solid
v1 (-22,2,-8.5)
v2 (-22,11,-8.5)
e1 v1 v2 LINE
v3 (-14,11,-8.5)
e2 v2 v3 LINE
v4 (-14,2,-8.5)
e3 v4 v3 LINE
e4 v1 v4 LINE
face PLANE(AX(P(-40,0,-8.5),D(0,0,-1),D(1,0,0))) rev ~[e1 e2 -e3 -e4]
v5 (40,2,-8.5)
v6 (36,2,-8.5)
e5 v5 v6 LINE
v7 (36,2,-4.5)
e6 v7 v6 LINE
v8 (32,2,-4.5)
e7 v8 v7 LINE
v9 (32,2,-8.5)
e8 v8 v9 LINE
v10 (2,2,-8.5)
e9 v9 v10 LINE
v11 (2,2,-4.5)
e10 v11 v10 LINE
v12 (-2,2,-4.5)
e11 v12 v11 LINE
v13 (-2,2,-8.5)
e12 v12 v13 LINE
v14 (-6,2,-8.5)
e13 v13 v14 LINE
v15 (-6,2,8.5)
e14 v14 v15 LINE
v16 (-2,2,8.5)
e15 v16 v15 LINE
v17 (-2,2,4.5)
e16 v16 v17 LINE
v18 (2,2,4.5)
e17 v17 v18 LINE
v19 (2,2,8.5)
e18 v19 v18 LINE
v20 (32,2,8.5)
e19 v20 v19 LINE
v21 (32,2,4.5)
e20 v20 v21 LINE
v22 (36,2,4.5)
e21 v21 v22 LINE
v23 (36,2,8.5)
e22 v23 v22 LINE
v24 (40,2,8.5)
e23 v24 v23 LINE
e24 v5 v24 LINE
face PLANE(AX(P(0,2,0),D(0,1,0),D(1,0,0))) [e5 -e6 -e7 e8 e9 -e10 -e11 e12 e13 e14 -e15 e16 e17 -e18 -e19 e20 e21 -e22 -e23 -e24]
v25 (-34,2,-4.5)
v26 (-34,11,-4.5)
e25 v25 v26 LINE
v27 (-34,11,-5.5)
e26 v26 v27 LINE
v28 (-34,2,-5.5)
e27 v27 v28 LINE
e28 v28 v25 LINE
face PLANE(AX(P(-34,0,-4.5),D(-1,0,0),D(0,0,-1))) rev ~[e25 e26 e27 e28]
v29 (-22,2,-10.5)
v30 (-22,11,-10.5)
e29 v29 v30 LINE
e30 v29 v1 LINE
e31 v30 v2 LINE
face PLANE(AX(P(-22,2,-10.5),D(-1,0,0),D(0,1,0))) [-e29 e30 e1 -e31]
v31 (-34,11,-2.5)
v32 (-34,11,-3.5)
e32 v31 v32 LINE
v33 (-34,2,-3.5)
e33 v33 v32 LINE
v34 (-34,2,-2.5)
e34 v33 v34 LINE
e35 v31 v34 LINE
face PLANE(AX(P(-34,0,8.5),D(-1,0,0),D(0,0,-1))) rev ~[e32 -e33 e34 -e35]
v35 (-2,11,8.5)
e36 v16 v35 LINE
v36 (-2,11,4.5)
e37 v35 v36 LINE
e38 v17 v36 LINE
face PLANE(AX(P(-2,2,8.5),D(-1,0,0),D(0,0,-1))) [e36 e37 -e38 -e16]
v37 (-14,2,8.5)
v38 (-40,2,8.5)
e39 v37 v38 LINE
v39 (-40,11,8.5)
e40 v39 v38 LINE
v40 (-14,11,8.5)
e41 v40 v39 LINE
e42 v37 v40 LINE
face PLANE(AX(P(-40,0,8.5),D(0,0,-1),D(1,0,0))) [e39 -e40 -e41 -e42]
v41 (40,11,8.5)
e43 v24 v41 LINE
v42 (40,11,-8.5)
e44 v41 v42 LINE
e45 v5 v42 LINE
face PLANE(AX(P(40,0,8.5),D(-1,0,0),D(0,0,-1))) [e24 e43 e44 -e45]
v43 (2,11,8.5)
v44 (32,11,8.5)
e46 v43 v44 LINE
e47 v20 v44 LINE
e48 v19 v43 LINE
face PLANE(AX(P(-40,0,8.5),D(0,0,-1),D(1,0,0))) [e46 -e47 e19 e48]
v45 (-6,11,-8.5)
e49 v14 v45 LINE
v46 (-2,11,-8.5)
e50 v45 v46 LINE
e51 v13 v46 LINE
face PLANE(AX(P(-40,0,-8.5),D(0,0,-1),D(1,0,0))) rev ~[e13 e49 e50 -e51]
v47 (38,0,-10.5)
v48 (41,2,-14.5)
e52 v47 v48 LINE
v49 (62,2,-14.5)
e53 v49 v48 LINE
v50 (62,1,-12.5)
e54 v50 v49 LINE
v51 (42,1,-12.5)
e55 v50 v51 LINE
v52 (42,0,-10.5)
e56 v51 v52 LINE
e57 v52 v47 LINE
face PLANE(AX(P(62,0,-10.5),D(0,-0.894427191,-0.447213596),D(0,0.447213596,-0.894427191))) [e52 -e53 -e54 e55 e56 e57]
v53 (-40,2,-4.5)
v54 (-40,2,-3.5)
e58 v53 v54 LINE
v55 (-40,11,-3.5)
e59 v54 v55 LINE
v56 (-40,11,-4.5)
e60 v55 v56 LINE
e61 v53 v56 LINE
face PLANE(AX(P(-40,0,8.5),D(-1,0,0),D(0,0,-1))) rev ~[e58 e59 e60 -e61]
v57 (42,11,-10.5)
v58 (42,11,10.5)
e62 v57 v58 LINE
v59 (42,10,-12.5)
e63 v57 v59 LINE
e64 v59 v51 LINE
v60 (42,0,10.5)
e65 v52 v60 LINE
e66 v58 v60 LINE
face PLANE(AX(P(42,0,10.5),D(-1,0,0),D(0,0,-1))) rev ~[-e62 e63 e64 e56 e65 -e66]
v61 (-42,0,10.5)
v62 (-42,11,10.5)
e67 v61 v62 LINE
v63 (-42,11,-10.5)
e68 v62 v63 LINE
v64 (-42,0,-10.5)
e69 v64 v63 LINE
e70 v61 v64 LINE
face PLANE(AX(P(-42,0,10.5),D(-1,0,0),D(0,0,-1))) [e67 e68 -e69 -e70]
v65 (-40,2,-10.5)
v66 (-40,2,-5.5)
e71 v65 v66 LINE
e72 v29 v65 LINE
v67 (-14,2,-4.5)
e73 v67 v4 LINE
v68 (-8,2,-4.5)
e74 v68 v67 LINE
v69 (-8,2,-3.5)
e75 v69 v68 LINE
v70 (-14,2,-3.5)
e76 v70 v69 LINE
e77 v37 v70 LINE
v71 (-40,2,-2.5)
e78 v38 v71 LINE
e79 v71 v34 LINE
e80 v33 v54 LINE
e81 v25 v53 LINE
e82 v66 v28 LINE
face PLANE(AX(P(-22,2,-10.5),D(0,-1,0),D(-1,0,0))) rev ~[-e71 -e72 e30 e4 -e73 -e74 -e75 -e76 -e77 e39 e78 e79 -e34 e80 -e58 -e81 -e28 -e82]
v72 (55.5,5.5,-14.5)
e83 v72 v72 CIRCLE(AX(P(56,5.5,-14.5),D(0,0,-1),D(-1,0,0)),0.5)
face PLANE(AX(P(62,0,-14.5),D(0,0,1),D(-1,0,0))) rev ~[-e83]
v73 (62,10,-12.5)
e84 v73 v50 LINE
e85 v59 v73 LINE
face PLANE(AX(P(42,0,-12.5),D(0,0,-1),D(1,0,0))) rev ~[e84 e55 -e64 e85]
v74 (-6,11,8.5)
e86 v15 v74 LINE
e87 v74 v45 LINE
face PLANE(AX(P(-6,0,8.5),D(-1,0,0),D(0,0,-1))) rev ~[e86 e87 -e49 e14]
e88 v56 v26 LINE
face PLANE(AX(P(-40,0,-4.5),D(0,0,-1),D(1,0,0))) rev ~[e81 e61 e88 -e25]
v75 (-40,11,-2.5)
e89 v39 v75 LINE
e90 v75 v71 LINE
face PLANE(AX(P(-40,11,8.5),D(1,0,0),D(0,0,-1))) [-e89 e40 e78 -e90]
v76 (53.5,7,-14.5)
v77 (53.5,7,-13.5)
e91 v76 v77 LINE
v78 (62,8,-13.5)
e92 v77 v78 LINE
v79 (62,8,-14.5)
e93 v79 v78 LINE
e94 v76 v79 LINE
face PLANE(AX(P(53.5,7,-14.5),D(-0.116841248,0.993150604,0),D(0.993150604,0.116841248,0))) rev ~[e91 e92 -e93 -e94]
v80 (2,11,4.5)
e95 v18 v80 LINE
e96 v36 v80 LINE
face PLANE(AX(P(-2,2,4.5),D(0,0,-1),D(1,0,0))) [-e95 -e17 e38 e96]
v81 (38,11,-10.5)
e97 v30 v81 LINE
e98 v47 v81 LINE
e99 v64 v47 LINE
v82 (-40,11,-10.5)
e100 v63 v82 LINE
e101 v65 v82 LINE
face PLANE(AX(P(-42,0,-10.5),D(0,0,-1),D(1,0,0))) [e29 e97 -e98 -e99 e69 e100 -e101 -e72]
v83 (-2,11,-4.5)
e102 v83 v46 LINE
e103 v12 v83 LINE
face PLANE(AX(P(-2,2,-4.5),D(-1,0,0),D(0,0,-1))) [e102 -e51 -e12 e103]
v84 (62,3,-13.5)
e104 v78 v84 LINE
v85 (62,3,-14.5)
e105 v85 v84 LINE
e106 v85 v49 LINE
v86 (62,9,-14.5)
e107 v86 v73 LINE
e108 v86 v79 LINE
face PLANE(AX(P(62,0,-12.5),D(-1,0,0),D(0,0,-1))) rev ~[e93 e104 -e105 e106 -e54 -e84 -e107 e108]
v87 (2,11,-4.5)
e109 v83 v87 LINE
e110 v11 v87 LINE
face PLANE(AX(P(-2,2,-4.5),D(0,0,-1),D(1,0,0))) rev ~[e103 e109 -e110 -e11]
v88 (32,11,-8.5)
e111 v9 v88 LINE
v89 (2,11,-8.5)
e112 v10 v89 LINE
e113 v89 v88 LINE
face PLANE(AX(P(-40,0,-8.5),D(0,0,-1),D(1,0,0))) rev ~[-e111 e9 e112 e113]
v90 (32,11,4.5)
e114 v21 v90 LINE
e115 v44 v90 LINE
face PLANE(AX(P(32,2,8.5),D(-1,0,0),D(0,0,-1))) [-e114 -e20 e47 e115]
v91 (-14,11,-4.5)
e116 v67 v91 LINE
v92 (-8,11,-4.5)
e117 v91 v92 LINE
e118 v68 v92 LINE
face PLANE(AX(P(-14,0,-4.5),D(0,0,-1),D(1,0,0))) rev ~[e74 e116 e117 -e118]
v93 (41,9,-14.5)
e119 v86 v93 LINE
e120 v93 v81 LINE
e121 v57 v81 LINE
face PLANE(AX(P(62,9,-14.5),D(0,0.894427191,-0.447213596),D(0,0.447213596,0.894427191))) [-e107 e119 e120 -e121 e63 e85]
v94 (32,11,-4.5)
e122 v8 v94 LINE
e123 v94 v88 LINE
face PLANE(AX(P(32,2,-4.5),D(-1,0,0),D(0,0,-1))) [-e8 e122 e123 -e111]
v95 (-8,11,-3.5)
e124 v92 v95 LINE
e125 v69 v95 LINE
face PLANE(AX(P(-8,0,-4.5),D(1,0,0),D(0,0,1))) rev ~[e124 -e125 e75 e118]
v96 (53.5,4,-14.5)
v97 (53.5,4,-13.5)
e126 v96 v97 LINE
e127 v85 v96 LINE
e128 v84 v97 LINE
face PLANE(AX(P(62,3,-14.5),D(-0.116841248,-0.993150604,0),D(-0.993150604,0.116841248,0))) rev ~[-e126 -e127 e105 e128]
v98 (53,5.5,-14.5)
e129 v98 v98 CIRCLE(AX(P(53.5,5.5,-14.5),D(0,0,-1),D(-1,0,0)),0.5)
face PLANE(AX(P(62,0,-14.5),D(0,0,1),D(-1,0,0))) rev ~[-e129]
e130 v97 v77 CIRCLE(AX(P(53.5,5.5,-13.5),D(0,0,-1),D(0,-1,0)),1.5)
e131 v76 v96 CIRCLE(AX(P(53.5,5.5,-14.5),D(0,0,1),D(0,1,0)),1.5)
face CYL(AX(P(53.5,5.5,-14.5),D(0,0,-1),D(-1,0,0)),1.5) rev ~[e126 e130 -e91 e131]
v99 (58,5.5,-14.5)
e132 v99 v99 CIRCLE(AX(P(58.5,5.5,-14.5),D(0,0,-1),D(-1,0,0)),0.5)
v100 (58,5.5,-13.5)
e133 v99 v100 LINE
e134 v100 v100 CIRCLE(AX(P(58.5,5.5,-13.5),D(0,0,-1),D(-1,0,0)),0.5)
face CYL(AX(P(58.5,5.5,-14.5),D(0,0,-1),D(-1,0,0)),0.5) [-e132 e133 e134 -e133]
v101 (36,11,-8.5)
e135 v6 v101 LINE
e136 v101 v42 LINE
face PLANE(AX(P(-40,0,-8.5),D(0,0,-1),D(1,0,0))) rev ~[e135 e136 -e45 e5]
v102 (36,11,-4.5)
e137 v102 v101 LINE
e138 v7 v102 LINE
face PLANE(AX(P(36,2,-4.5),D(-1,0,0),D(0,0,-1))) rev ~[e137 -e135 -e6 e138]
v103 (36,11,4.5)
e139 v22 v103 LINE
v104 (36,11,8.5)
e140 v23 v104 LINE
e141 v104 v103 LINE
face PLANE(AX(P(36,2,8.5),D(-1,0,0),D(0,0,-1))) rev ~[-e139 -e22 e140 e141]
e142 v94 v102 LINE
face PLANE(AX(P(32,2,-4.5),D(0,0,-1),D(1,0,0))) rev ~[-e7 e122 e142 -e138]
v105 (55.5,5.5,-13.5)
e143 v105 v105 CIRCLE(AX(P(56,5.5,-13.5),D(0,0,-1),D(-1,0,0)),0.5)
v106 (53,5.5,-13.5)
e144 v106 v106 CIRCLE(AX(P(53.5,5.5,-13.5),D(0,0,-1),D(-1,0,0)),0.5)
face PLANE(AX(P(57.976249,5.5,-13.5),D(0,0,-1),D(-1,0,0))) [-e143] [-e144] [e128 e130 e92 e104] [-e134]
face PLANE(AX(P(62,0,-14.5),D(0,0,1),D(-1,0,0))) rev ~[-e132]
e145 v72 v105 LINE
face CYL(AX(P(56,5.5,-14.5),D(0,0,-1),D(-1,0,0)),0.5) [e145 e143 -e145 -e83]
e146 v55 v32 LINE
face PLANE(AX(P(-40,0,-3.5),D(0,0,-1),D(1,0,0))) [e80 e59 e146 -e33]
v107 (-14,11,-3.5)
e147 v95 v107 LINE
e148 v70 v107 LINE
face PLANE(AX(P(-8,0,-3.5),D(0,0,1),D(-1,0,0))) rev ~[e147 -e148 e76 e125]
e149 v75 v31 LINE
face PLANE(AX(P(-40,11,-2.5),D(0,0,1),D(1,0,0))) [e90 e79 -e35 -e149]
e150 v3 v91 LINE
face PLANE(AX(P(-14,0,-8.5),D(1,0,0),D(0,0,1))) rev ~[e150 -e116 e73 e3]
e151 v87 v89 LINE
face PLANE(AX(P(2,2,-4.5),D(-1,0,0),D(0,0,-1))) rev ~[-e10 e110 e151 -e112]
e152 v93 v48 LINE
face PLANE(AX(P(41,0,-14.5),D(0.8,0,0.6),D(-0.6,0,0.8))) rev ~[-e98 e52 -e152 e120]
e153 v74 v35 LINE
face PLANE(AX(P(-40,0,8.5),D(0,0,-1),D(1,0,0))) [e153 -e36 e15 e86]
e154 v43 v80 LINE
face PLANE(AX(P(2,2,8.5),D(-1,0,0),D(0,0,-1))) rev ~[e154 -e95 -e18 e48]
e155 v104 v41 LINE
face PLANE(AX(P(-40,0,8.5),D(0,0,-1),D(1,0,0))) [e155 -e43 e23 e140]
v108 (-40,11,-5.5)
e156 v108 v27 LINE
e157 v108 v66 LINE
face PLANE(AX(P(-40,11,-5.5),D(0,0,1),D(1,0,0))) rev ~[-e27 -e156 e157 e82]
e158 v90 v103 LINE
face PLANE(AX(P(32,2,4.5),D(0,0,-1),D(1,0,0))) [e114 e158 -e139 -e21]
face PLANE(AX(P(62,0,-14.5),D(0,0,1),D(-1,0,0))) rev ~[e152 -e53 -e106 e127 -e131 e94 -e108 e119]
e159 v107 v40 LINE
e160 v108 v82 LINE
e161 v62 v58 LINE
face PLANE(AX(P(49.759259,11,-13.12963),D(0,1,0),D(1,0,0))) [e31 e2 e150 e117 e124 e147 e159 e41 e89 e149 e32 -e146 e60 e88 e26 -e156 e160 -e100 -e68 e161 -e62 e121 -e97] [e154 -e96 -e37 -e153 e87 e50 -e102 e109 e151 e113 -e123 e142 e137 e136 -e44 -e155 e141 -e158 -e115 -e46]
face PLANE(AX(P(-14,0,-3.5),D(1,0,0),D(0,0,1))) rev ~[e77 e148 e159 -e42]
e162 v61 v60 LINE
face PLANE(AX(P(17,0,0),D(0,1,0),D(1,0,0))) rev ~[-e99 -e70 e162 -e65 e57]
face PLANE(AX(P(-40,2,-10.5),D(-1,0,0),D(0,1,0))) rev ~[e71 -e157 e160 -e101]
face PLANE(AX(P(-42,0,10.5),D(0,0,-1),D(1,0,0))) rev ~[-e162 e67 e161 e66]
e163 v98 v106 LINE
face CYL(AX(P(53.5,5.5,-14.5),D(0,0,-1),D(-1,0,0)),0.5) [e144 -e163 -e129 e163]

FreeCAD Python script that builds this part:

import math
import FreeCAD as App
import Part
import Sketcher
from FreeCAD import Vector
Q = App.Units.Quantity


def add_polygon(sketch, points):
    """Adds a closed chain of lines whose ends are joined by coincident constraints."""
    first, n = sketch.GeometryCount, len(points)
    for a, b in zip(points, points[1:] + points[:1]):
        sketch.addGeometry(Part.LineSegment(App.Vector(*a, 0), App.Vector(*b, 0)), False)
    for i in range(n):
        sketch.addConstraint(Sketcher.Constraint("Coincident", first + i, 2, first + (i + 1) % n, 1))

doc = App.newDocument("Part")
body = doc.addObject("PartDesign::Body", "Body")

# Sketch on XZ plane
sketch1 = body.newObject("Sketcher::SketchObject", "Sketch")
sketch1.AttachmentSupport = (doc.getObject("XZ_Plane"), [""])
sketch1.MapMode = "FlatFace"
add_polygon(sketch1, [(42, -12.5), (62, -12.5), (62, -14.5), (41, -14.5), (38, -10.5), (-42, -10.5), (-42, 10.5), (42, 10.5)])  # lines 0-7
sketch1.addConstraint([
    Sketcher.Constraint("Horizontal", 0),
    Sketcher.Constraint("Vertical", 1),
    Sketcher.Constraint("Horizontal", 2),
    Sketcher.Constraint("Horizontal", 4),
    Sketcher.Constraint("Vertical", 5),
    Sketcher.Constraint("Horizontal", 6),
    Sketcher.Constraint("Vertical", 7),
    Sketcher.Constraint("Symmetric", 4, 2, 6, 2, -1, 1),
    Sketcher.Constraint("Equal", 2, 5),
    Sketcher.Constraint("DistanceX", 0, 1, 0, 2, Q("20 mm")),
    Sketcher.Constraint("DistanceX", 2, 2, 2, 1, Q("21 mm")),
    Sketcher.Constraint("DistanceX", 4, 2, 4, 1, Q("80 mm")),
    Sketcher.Constraint("DistanceX", 6, 1, 6, 2, Q("84 mm")),
    Sketcher.Constraint("DistanceY", 1, 2, 1, 1, Q("2 mm")),
    Sketcher.Constraint("DistanceY", 7, 2, 7, 1, Q("23 mm")),
])
pad1 = body.newObject("PartDesign::Pad", "Pad")
pad1.Profile = sketch1
pad1.Length = 2
pad1.Reversed = True

# Sketch on XZ plane
sketch2 = body.newObject("Sketcher::SketchObject", "Sketch001")
sketch2.AttachmentSupport = (doc.getObject("XZ_Plane"), [""])
sketch2.MapMode = "FlatFace"
add_polygon(sketch2, [(42, -12.5), (62, -12.5), (62, -14.5), (41, -14.5), (38, -10.5), (-42, -10.5), (-42, 10.5), (42, 10.5)])  # lines 0-7
add_polygon(sketch2, [(-14, 8.5), (-34, 8.5), (-34, -3.5), (-40, -3.5), (-40, -4.5), (-34, -4.5), (-34, -8.5), (-14, -8.5), (-14, -4.5), (-8, -4.5), (-8, -3.5), (-14, -3.5)])  # lines 8-19
add_polygon(sketch2, [(40, 8.5), (-6, 8.5), (-6, -8.5), (40, -8.5)])  # lines 20-23
sketch2.addConstraint([
    Sketcher.Constraint("Horizontal", 0),
    Sketcher.Constraint("Vertical", 1),
    Sketcher.Constraint("Horizontal", 2),
    Sketcher.Constraint("Horizontal", 4),
    Sketcher.Constraint("Vertical", 5),
    Sketcher.Constraint("Horizontal", 6),
    Sketcher.Constraint("Vertical", 7),
    Sketcher.Constraint("Horizontal", 8),
    Sketcher.Constraint("Vertical", 9),
    Sketcher.Constraint("Horizontal", 10),
    Sketcher.Constraint("Vertical", 11),
    Sketcher.Constraint("Horizontal", 12),
    Sketcher.Constraint("Vertical", 13),
    Sketcher.Constraint("Horizontal", 14),
    Sketcher.Constraint("Vertical", 15),
    Sketcher.Constraint("Horizontal", 16),
    Sketcher.Constraint("Vertical", 17),
    Sketcher.Constraint("Horizontal", 18),
    Sketcher.Constraint("Vertical", 19),
    Sketcher.Constraint("Horizontal", 20),
    Sketcher.Constraint("Vertical", 21),
    Sketcher.Constraint("Horizontal", 22),
    Sketcher.Constraint("Vertical", 23),
    Sketcher.Constraint("Symmetric", 4, 2, 6, 2, -1, 1),
    Sketcher.Constraint("Symmetric", 8, 2, 13, 2, -1),
    Sketcher.Constraint("Horizontal", 12, 2, 15, 2),
    Sketcher.Constraint("Horizontal", 10, 2, 17, 2),
    Sketcher.Constraint("Horizontal", 19, 2, 20, 2),
    Sketcher.Constraint("Horizontal", 14, 2, 21, 2),
    Sketcher.Constraint("Vertical", 15, 2, 18, 2),
    Sketcher.Constraint("Equal", 0, 8),
    Sketcher.Constraint("Equal", 12, 16),
    Sketcher.Constraint("Equal", 2, 5),
    Sketcher.Constraint("DistanceX", 0, 1, 0, 2, Q("20 mm")),
    Sketcher.Constraint("DistanceX", 2, 2, 2, 1, Q("21 mm")),
    Sketcher.Constraint("DistanceX", 4, 2, 4, 1, Q("80 mm")),
    Sketcher.Constraint("DistanceX", 6, 1, 6, 2, Q("84 mm")),
    Sketcher.Constraint("DistanceX", 10, 2, 10, 1, Q("6 mm")),
    Sketcher.Constraint("DistanceX", 20, 2, 20, 1, Q("46 mm")),
    Sketcher.Constraint("DistanceY", 1, 2, 1, 1, Q("2 mm")),
    Sketcher.Constraint("DistanceY", 7, 2, 7, 1, Q("23 mm")),
    Sketcher.Constraint("DistanceY", 9, 2, 9, 1, Q("12 mm")),
    Sketcher.Constraint("DistanceY", 11, 2, 11, 1, Q("1 mm")),
    Sketcher.Constraint("DistanceY", 13, 2, 13, 1, Q("4 mm")),
    Sketcher.Constraint("DistanceX", 8, 2, -1, 1, Q("34 mm")),
    Sketcher.Constraint("DistanceX", 20, 2, -1, 1, Q("6 mm")),
])
pad2 = body.newObject("PartDesign::Pad", "Pad001")
pad2.Profile = sketch2
pad2.Length = 11
pad2.Reversed = True

# Sketch on XZ plane
sketch3 = body.newObject("Sketcher::SketchObject", "Sketch002")
sketch3.AttachmentSupport = (doc.getObject("XZ_Plane"), [""])
sketch3.MapMode = "FlatFace"
sketch3.AttachmentOffset = App.Placement(Vector(0, 0, -11), App.Rotation())
add_polygon(sketch3, [(-40, -8.5), (-40, -5.5), (-34, -5.5), (-34, -8.5)])  # lines 0-3
add_polygon(sketch3, [(-40, -2.5), (-40, 8.5), (-34, 8.5), (-34, -2.5)])  # lines 4-7
sketch3.addConstraint([
    Sketcher.Constraint("Vertical", 0),
    Sketcher.Constraint("Horizontal", 1),
    Sketcher.Constraint("Vertical", 2),
    Sketcher.Constraint("Horizontal", 3),
    Sketcher.Constraint("Vertical", 4),
    Sketcher.Constraint("Horizontal", 5),
    Sketcher.Constraint("Vertical", 6),
    Sketcher.Constraint("Horizontal", 7),
    Sketcher.Constraint("Symmetric", 3, 2, 4, 2, -1),
    Sketcher.Constraint("Vertical", 2, 2, 5, 2),
    Sketcher.Constraint("DistanceX", 1, 1, 1, 2, Q("6 mm")),
    Sketcher.Constraint("DistanceY", 0, 1, 0, 2, Q("3 mm")),
    Sketcher.Constraint("DistanceY", 4, 1, 4, 2, Q("11 mm")),
    Sketcher.Constraint("DistanceX", 0, 2, -1, 1, Q("40 mm")),
    Sketcher.Constraint("DistanceY", 0, 2, 4, 2, Q("14 mm")),
])
pocket1 = body.newObject("PartDesign::Pocket", "Pocket")
pocket1.Profile = sketch3
pocket1.Length = 9
pocket1.Reversed = True

# Sketch on XY plane
sketch4 = body.newObject("Sketcher::SketchObject", "Sketch003")
sketch4.AttachmentSupport = (doc.getObject("XY_Plane"), [""])
sketch4.MapMode = "FlatFace"
sketch4.AttachmentOffset = App.Placement(Vector(0, 0, -10.5), App.Rotation())
add_polygon(sketch4, [(-22, 11), (-22, 2), (-40, 2), (-40, 11)])  # lines 0-3
sketch4.addConstraint([
    Sketcher.Constraint("Vertical", 0),
    Sketcher.Constraint("Horizontal", 1),
    Sketcher.Constraint("Vertical", 2),
    Sketcher.Constraint("Horizontal", 3),
    Sketcher.Constraint("DistanceX", 1, 2, 1, 1, Q("18 mm")),
    Sketcher.Constraint("DistanceY", 0, 2, 0, 1, Q("9 mm")),
    Sketcher.Constraint("DistanceX", 0, 2, -1, 1, Q("22 mm")),
    Sketcher.Constraint("DistanceY", -1, 1, 0, 2, Q("2 mm")),
])
pocket2 = body.newObject("PartDesign::Pocket", "Pocket001")
pocket2.Profile = sketch4
pocket2.Length = 2
pocket2.Reversed = True

# Sketch on XZ plane
sketch5 = body.newObject("Sketcher::SketchObject", "Sketch004")
sketch5.AttachmentSupport = (doc.getObject("XZ_Plane"), [""])
sketch5.MapMode = "FlatFace"
sketch5.AttachmentOffset = App.Placement(Vector(0, 0, -2), App.Rotation())
add_polygon(sketch5, [(-2, -8.5), (-2, -4.5), (2, -4.5), (2, -8.5)])  # lines 0-3
add_polygon(sketch5, [(-2, 4.5), (-2, 8.5), (2, 8.5), (2, 4.5)])  # lines 4-7
add_polygon(sketch5, [(32, -8.5), (32, -4.5), (36, -4.5), (36, -8.5)])  # lines 8-11
add_polygon(sketch5, [(32, 4.5), (32, 8.5), (36, 8.5), (36, 4.5)])  # lines 12-15
sketch5.addConstraint([
    Sketcher.Constraint("Vertical", 0),
    Sketcher.Constraint("Horizontal", 1),
    Sketcher.Constraint("Vertical", 2),
    Sketcher.Constraint("Horizontal", 3),
    Sketcher.Constraint("Vertical", 4),
    Sketcher.Constraint("Horizontal", 5),
    Sketcher.Constraint("Vertical", 6),
    Sketcher.Constraint("Horizontal", 7),
    Sketcher.Constraint("Vertical", 8),
    Sketcher.Constraint("Horizontal", 9),
    Sketcher.Constraint("Vertical", 10),
    Sketcher.Constraint("Horizontal", 11),
    Sketcher.Constraint("Vertical", 12),
    Sketcher.Constraint("Horizontal", 13),
    Sketcher.Constraint("Vertical", 14),
    Sketcher.Constraint("Horizontal", 15),
    Sketcher.Constraint("Symmetric", 2, 2, 4, 2, -1, 1),
    Sketcher.Constraint("Symmetric", 0, 2, 6, 2, -1, 1),
    Sketcher.Constraint("Symmetric", 11, 2, 12, 2, -1),
    Sketcher.Constraint("Symmetric", 9, 2, 14, 2, -1),
    Sketcher.Constraint("Horizontal", 1, 2, 8, 2),
    Sketcher.Constraint("Horizontal", 3, 2, 10, 2),
    Sketcher.Constraint("Vertical", 3, 2, 4, 2),
    Sketcher.Constraint("Equal", 7, 9),
    Sketcher.Constraint("Equal", 15, 0),
    Sketcher.Constraint("DistanceX", 1, 1, 1, 2, Q("4 mm")),
    Sketcher.Constraint("DistanceX", -1, 1, 8, 2, Q("32 mm")),
    Sketcher.Constraint("DistanceY", 0, 2, 4, 2, Q("13 mm")),
])
pad3 = body.newObject("PartDesign::Pad", "Pad002")
pad3.Profile = sketch5
pad3.Length = 9
pad3.Reversed = True

# Sketch on XY plane
sketch6 = body.newObject("Sketcher::SketchObject", "Sketch005")
sketch6.AttachmentSupport = (doc.getObject("XY_Plane"), [""])
sketch6.MapMode = "FlatFace"
sketch6.AttachmentOffset = App.Placement(Vector(0, 0, -14.5), App.Rotation())
sketch6.addGeometry([
    Part.LineSegment(Vector(62, 8, 0), Vector(62, 3, 0)),  # 0
    Part.LineSegment(Vector(62, 3, 0), Vector(53.5, 4, 0)),  # 1
    Part.ArcOfCircle(Part.Circle(Vector(53.5, 5.5, 0), Vector(0, 0, 1), 1.5), math.radians(90), math.radians(270)),  # 2
    Part.LineSegment(Vector(53.5, 7, 0), Vector(62, 8, 0)),  # 3
    Part.Circle(Vector(58.5, 5.5, 0), Vector(0, 0, 1), 0.5),  # 4
    Part.Circle(Vector(56, 5.5, 0), Vector(0, 0, 1), 0.5),  # 5
    Part.Circle(Vector(53.5, 5.5, 0), Vector(0, 0, 1), 0.5),  # 6
], False)
sketch6.addConstraint([
    Sketcher.Constraint("Coincident", 0, 2, 1, 1),
    Sketcher.Constraint("Coincident", 1, 2, 2, 2),
    Sketcher.Constraint("Coincident", 2, 1, 3, 1),
    Sketcher.Constraint("Coincident", 3, 2, 0, 1),
    Sketcher.Constraint("Vertical", 0),
    Sketcher.Constraint("Coincident", 6, 3, 2, 3),
    Sketcher.Constraint("Equal", 4, 5),
    Sketcher.Constraint("Equal", 5, 6),
    Sketcher.Constraint("Horizontal", 2, 3, 4, 3),
    Sketcher.Constraint("Horizontal", 4, 3, 5, 3),
    Sketcher.Constraint("Vertical", 6, 3, 1, 2),
    Sketcher.Constraint("Vertical", 1, 2, 2, 1),
    Sketcher.Constraint("Equal", 1, 3),
    Sketcher.Constraint("Diameter", 4, Q("1 mm")),
    Sketcher.Constraint("Radius", 2, Q("1.5 mm")),
    Sketcher.Constraint("DistanceY", 0, 2, 0, 1, Q("5 mm")),
    Sketcher.Constraint("DistanceX", -1, 1, 5, 3, Q("56 mm")),
    Sketcher.Constraint("DistanceX", -1, 1, 0, 2, Q("62 mm")),
    Sketcher.Constraint("DistanceY", -1, 1, 0, 2, Q("3 mm")),
    Sketcher.Constraint("DistanceX", 2, 3, 4, 3, Q("5 mm")),
    Sketcher.Constraint("DistanceX", -1, 1, 2, 3, Q("53.5 mm")),
])
pocket3 = body.newObject("PartDesign::Pocket", "Pocket002")
pocket3.Profile = sketch6
pocket3.Length = 1
pocket3.Reversed = True

# Sketch on YZ plane
sketch7 = body.newObject("Sketcher::SketchObject", "Sketch006")
sketch7.AttachmentSupport = (doc.getObject("YZ_Plane"), [""])
sketch7.MapMode = "FlatFace"
sketch7.AttachmentOffset = App.Placement(Vector(0, 0, 62), App.Rotation())
add_polygon(sketch7, [(11, -14.5), (11, -10.5), (9, -14.5)])  # lines 0-2
add_polygon(sketch7, [(2, -14.5), (0, -10.5), (0, -14.5)])  # lines 3-5
sketch7.addConstraint([
    Sketcher.Constraint("Vertical", 0),
    Sketcher.Constraint("Horizontal", 2),
    Sketcher.Constraint("Vertical", 4),
    Sketcher.Constraint("Horizontal", 5),
    Sketcher.Constraint("PointOnObject", 3, 2, -2),
    Sketcher.Constraint("Horizontal", 0, 2, 3, 2),
    Sketcher.Constraint("Horizontal", 2, 2, 4, 2),
    Sketcher.Constraint("Equal", 2, 5),
    Sketcher.Constraint("DistanceX", 2, 1, 2, 2, Q("2 mm")),
    Sketcher.Constraint("DistanceY", 0, 1, 0, 2, Q("4 mm")),
    Sketcher.Constraint("DistanceX", -1, 1, 0, 2, Q("11 mm")),
    Sketcher.Constraint("DistanceY", 0, 2, -1, 1, Q("10.5 mm")),
])
pocket4 = body.newObject("PartDesign::Pocket", "Pocket003")
pocket4.Profile = sketch7
pocket4.Length = 24

doc.recompute()
